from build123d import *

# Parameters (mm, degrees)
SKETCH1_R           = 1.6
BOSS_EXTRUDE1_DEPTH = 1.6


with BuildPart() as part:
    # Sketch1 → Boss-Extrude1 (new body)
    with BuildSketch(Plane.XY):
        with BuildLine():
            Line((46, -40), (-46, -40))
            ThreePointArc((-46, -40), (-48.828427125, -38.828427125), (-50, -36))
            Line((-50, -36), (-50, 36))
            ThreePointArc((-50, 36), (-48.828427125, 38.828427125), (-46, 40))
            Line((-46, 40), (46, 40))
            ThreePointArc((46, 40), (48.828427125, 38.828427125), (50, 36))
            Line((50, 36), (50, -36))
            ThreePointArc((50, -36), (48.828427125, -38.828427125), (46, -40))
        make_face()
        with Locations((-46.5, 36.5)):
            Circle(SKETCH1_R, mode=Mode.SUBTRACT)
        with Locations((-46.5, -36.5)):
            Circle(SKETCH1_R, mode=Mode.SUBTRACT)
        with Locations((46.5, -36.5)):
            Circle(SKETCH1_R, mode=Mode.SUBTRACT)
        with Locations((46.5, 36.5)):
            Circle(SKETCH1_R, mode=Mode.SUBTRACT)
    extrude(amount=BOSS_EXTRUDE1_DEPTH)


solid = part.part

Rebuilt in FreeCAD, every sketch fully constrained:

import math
import FreeCAD as App
import Part
import Sketcher
Q = App.Units.Quantity

doc = App.newDocument("Part")
body = doc.addObject("PartDesign::Body", "Body")

sketch1 = body.newObject("Sketcher::SketchObject", "Sketch")
sketch1.AttachmentSupport = (doc.getObject("XY_Plane"), [""])
sketch1.MapMode = "FlatFace"
sketch1.addGeometry(Part.LineSegment(App.Vector(-46, -40, 0), App.Vector(46, -40, 0)), False)
sketch1.addGeometry(Part.ArcOfCircle(Part.Circle(App.Vector(46, -36, 0), App.Vector(0, 0, 1), 4), math.radians(-90), math.radians(0)), False)
sketch1.addGeometry(Part.LineSegment(App.Vector(50, -36, 0), App.Vector(50, 36, 0)), False)
sketch1.addGeometry(Part.ArcOfCircle(Part.Circle(App.Vector(46, 36, 0), App.Vector(0, 0, 1), 4), math.radians(0), math.radians(90)), False)
sketch1.addGeometry(Part.LineSegment(App.Vector(46, 40, 0), App.Vector(-46, 40, 0)), False)
sketch1.addGeometry(Part.ArcOfCircle(Part.Circle(App.Vector(-46, 36, 0), App.Vector(0, 0, 1), 4), math.radians(90), math.radians(180)), False)
sketch1.addGeometry(Part.LineSegment(App.Vector(-50, 36, 0), App.Vector(-50, -36, 0)), False)
sketch1.addGeometry(Part.ArcOfCircle(Part.Circle(App.Vector(-46, -36, 0), App.Vector(0, 0, 1), 4), math.radians(180), math.radians(270)), False)
sketch1.addGeometry(Part.Circle(App.Vector(46.5, -36.5, 0), App.Vector(0, 0, 1), 1.6), False)
sketch1.addGeometry(Part.Circle(App.Vector(-46.5, -36.5, 0), App.Vector(0, 0, 1), 1.6), False)
sketch1.addGeometry(Part.Circle(App.Vector(46.5, 36.5, 0), App.Vector(0, 0, 1), 1.6), False)
sketch1.addGeometry(Part.Circle(App.Vector(-46.5, 36.5, 0), App.Vector(0, 0, 1), 1.6), False)
sketch1.addConstraint(Sketcher.Constraint("Tangent", 0, 2, 1, 1))
sketch1.addConstraint(Sketcher.Constraint("Tangent", 1, 2, 2, 1))
sketch1.addConstraint(Sketcher.Constraint("Tangent", 2, 2, 3, 1))
sketch1.addConstraint(Sketcher.Constraint("Tangent", 3, 2, 4, 1))
sketch1.addConstraint(Sketcher.Constraint("Tangent", 4, 2, 5, 1))
sketch1.addConstraint(Sketcher.Constraint("Tangent", 5, 2, 6, 1))
sketch1.addConstraint(Sketcher.Constraint("Tangent", 6, 2, 7, 1))
sketch1.addConstraint(Sketcher.Constraint("Tangent", 7, 2, 0, 1))
sketch1.addConstraint(Sketcher.Constraint("Horizontal", 0))
sketch1.addConstraint(Sketcher.Constraint("Vertical", 2))
sketch1.addConstraint(Sketcher.Constraint("Horizontal", 4))
sketch1.addConstraint(Sketcher.Constraint("Vertical", 6))
sketch1.addConstraint(Sketcher.Constraint("Equal", 1, 3))
sketch1.addConstraint(Sketcher.Constraint("Equal", 3, 5))
sketch1.addConstraint(Sketcher.Constraint("Equal", 5, 7))
sketch1.addConstraint(Sketcher.Constraint("Equal", 8, 9))
sketch1.addConstraint(Sketcher.Constraint("Equal", 9, 10))
sketch1.addConstraint(Sketcher.Constraint("Equal", 10, 11))
sketch1.addConstraint(Sketcher.Constraint("Symmetric", 1, 3, 5, 3, -1, 1))
sketch1.addConstraint(Sketcher.Constraint("Symmetric", 9, 3, 10, 3, -1, 1))
sketch1.addConstraint(Sketcher.Constraint("Symmetric", 8, 3, 11, 3, -1, 1))
sketch1.addConstraint(Sketcher.Constraint("Symmetric", 8, 3, 9, 3, -2))
sketch1.addConstraint(Sketcher.Constraint("Radius", 1, Q("4 mm")))
sketch1.addConstraint(Sketcher.Constraint("Diameter", 8, Q("3.2 mm")))
sketch1.addConstraint(Sketcher.Constraint("DistanceX", 0, 1, 0, 2, Q("92 mm")))
sketch1.addConstraint(Sketcher.Constraint("DistanceY", 2, 1, 2, 2, Q("72 mm")))
sketch1.addConstraint(Sketcher.Constraint("DistanceX", 9, 3, 8, 3, Q("93 mm")))
sketch1.addConstraint(Sketcher.Constraint("DistanceY", 8, 3, 10, 3, Q("73 mm")))
pad1 = body.newObject("PartDesign::Pad", "Pad")
pad1.Profile = sketch1
pad1.Length = 1.6

doc.recompute()
